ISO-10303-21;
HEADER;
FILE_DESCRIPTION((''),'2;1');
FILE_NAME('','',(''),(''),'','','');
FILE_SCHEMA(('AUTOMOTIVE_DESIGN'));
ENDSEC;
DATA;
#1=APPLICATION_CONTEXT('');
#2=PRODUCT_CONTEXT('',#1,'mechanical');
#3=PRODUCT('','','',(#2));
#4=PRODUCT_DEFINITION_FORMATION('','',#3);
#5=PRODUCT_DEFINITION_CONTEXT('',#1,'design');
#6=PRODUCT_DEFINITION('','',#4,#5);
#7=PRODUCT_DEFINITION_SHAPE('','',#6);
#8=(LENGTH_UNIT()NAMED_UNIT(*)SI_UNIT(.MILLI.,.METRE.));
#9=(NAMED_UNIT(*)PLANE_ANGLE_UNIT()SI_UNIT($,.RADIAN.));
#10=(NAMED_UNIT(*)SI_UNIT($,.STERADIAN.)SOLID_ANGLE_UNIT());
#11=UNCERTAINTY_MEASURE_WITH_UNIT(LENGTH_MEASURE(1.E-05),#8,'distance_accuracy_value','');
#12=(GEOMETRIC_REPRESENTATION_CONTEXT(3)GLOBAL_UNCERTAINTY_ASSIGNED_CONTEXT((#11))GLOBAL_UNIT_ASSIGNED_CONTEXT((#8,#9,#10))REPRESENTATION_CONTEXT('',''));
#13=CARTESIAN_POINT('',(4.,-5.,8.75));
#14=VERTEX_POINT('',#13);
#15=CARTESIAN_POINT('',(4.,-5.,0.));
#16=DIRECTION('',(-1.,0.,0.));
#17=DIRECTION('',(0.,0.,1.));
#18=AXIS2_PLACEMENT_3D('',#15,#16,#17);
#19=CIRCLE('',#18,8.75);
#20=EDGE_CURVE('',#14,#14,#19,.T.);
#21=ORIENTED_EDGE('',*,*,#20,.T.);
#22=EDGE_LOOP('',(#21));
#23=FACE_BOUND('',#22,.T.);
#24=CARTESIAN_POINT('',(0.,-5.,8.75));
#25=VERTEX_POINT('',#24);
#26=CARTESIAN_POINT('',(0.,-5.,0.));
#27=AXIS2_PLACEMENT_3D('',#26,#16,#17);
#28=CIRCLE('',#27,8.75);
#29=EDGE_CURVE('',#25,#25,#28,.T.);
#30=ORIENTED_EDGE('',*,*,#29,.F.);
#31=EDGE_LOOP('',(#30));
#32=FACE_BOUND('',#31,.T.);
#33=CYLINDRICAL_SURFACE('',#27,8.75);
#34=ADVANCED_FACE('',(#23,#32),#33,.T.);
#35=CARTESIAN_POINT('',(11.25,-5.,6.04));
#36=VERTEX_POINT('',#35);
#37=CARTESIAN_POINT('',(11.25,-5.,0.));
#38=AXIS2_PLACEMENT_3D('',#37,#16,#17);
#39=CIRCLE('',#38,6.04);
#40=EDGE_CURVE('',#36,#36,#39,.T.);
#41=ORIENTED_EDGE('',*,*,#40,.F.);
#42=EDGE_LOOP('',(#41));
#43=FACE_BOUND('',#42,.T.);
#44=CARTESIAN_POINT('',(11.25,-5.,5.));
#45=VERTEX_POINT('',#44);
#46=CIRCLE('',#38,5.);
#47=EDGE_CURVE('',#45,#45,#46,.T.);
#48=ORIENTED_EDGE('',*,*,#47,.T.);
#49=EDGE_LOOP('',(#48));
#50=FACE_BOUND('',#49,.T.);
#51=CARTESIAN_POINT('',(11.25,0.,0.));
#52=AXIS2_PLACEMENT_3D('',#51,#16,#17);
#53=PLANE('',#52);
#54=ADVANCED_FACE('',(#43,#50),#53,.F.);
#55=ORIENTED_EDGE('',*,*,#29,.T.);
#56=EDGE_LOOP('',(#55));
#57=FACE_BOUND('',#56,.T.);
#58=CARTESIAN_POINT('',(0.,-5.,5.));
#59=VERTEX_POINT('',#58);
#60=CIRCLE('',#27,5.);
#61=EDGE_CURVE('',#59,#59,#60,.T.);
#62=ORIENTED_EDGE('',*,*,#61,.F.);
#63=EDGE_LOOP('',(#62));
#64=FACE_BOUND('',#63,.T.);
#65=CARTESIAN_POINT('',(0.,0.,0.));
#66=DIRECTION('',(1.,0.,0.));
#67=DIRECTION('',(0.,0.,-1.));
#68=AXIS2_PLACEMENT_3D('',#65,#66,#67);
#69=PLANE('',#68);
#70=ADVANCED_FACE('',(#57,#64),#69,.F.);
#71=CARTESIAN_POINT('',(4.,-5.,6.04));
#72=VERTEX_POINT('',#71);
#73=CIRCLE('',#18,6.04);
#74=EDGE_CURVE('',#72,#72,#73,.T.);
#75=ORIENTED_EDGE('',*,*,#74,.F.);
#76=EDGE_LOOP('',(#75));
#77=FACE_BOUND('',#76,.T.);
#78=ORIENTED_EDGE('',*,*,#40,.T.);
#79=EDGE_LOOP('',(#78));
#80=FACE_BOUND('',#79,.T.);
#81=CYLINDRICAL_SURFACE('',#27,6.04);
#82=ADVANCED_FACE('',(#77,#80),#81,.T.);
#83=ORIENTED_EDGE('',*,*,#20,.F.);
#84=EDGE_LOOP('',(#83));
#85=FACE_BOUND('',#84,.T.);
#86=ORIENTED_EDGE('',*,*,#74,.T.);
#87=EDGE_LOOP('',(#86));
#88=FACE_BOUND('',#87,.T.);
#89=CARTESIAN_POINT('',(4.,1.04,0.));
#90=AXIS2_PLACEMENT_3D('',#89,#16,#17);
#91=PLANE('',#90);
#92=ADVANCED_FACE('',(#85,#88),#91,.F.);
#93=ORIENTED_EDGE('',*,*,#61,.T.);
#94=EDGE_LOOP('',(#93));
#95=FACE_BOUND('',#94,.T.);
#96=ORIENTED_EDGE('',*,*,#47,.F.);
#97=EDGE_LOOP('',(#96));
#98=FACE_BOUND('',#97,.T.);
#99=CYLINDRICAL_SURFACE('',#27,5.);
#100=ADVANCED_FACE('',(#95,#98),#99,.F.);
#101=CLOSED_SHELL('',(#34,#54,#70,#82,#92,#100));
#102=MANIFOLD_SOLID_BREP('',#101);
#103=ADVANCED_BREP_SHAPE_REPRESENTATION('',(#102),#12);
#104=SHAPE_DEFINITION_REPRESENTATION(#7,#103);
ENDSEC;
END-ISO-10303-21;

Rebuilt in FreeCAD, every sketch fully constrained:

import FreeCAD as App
import Part
import Sketcher

V = App.Vector

doc = App.newDocument("Part")
body = doc.addObject("PartDesign::Body", "Body")

# Sketch on XY plane
sketch1 = body.newObject("Sketcher::SketchObject", "Sketch")
sketch1.AttachmentSupport = (doc.getObject("XY_Plane"), [""])
sketch1.MapMode = "FlatFace"
sketch1.addGeometry(Part.LineSegment(V(0, 3.8, 0), V(0, 0, 0)), False)
sketch1.addGeometry(Part.LineSegment(V(0, 0, 0), V(11.2, 0, 0)), False)
sketch1.addGeometry(Part.LineSegment(V(11.2, 0, 0), V(11.2, 1, 0)), False)
sketch1.addGeometry(Part.LineSegment(V(11.2, 1, 0), V(4, 1, 0)), False)
sketch1.addGeometry(Part.LineSegment(V(4, 1, 0), V(4, 3.8, 0)), False)
sketch1.addGeometry(Part.LineSegment(V(4, 3.8, 0), V(0, 3.8, 0)), False)
sketch1.addGeometry(Part.LineSegment(V(0, -5, 0), V(11.2, -5, 0)), True)  # axis
sketch1.addConstraint(Sketcher.Constraint("Coincident", 0, 2, 1, 1))
sketch1.addConstraint(Sketcher.Constraint("Coincident", 1, 2, 2, 1))
sketch1.addConstraint(Sketcher.Constraint("Coincident", 2, 2, 3, 1))
sketch1.addConstraint(Sketcher.Constraint("Coincident", 3, 2, 4, 1))
sketch1.addConstraint(Sketcher.Constraint("Coincident", 4, 2, 5, 1))
sketch1.addConstraint(Sketcher.Constraint("Coincident", 5, 2, 0, 1))
sketch1.addConstraint(Sketcher.Constraint("Vertical", 0))
sketch1.addConstraint(Sketcher.Constraint("Horizontal", 1))
sketch1.addConstraint(Sketcher.Constraint("Vertical", 2))
sketch1.addConstraint(Sketcher.Constraint("Horizontal", 3))
sketch1.addConstraint(Sketcher.Constraint("Vertical", 4))
sketch1.addConstraint(Sketcher.Constraint("Horizontal", 5))
sketch1.addConstraint(Sketcher.Constraint("Horizontal", 6))
sketch1.addConstraint(Sketcher.Constraint("Coincident", 0, 2, -1, 1))
sketch1.addConstraint(Sketcher.Constraint("PointOnObject", 6, 1, -2))
sketch1.addConstraint(Sketcher.Constraint("Vertical", 2, 2, 6, 2))
sketch1.addConstraint(Sketcher.Constraint("DistanceX", 5, 2, 5, 1, 4.0))
sketch1.addConstraint(Sketcher.Constraint("DistanceY", 6, 1, -1, 1, 5.0))
sketch1.addConstraint(Sketcher.Constraint("DistanceX", 1, 1, 1, 2, 11.25))
sketch1.addConstraint(Sketcher.Constraint("DistanceY", 0, 2, 0, 1, 3.75))
sketch1.addConstraint(Sketcher.Constraint("DistanceY", 2, 1, 2, 2, 1.04))
revolution = body.newObject("PartDesign::Revolution", "Revolution")
revolution.Profile = sketch1
revolution.ReferenceAxis = (sketch1, ["Axis0"])
revolution.Angle = 360

doc.recompute()
